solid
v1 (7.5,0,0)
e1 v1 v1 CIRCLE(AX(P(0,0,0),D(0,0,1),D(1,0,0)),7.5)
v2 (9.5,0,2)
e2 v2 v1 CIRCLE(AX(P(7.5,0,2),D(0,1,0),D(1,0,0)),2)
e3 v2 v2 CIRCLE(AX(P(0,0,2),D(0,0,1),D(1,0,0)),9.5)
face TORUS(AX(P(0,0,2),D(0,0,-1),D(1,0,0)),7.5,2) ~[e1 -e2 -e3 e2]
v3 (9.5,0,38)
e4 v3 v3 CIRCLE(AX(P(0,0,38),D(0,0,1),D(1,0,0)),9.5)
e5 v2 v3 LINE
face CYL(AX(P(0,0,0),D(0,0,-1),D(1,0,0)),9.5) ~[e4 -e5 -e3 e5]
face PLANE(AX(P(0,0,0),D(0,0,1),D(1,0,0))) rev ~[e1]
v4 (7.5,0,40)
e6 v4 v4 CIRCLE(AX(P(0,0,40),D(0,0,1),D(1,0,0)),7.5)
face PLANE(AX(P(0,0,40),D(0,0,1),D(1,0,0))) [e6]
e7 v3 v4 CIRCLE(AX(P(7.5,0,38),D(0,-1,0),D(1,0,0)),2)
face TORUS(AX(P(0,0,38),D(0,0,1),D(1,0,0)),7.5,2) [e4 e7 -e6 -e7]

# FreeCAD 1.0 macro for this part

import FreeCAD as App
import Part
import Sketcher
from FreeCAD import Vector


def edges_at(feature, points):
    """Names of the edges that pass closest to the given points."""
    edges = feature.Shape.Edges
    near = lambda p: min(range(len(edges)), key=lambda i: edges[i].distToShape(Part.Vertex(*p))[0])
    return sorted({f"Edge{near(p) + 1}" for p in points})

doc = App.newDocument("Part")
body = doc.addObject("PartDesign::Body", "Body")

sketch1 = body.newObject("Sketcher::SketchObject", "Sketch")
sketch1.AttachmentSupport = (doc.getObject("XY_Plane"), [""])
sketch1.MapMode = "FlatFace"
sketch1.addGeometry(Part.Circle(Vector(0, 0, 0), Vector(0, 0, 1), 10), False)
sketch1.addConstraint([
    Sketcher.Constraint("Coincident", 0, 3, -1, 1),
    Sketcher.Constraint("Diameter", 0, 19.0),
])
pad1 = body.newObject("PartDesign::Pad", "Pad")
pad1.Profile = sketch1
pad1.Length = 40
doc.recompute()

fillet = body.newObject("PartDesign::Fillet", "Fillet")
fillet.Base = (pad1, edges_at(pad1, [(-9.5, 0, 40), (-9.5, 0, 0)]))
fillet.Radius = 2

doc.recompute()
